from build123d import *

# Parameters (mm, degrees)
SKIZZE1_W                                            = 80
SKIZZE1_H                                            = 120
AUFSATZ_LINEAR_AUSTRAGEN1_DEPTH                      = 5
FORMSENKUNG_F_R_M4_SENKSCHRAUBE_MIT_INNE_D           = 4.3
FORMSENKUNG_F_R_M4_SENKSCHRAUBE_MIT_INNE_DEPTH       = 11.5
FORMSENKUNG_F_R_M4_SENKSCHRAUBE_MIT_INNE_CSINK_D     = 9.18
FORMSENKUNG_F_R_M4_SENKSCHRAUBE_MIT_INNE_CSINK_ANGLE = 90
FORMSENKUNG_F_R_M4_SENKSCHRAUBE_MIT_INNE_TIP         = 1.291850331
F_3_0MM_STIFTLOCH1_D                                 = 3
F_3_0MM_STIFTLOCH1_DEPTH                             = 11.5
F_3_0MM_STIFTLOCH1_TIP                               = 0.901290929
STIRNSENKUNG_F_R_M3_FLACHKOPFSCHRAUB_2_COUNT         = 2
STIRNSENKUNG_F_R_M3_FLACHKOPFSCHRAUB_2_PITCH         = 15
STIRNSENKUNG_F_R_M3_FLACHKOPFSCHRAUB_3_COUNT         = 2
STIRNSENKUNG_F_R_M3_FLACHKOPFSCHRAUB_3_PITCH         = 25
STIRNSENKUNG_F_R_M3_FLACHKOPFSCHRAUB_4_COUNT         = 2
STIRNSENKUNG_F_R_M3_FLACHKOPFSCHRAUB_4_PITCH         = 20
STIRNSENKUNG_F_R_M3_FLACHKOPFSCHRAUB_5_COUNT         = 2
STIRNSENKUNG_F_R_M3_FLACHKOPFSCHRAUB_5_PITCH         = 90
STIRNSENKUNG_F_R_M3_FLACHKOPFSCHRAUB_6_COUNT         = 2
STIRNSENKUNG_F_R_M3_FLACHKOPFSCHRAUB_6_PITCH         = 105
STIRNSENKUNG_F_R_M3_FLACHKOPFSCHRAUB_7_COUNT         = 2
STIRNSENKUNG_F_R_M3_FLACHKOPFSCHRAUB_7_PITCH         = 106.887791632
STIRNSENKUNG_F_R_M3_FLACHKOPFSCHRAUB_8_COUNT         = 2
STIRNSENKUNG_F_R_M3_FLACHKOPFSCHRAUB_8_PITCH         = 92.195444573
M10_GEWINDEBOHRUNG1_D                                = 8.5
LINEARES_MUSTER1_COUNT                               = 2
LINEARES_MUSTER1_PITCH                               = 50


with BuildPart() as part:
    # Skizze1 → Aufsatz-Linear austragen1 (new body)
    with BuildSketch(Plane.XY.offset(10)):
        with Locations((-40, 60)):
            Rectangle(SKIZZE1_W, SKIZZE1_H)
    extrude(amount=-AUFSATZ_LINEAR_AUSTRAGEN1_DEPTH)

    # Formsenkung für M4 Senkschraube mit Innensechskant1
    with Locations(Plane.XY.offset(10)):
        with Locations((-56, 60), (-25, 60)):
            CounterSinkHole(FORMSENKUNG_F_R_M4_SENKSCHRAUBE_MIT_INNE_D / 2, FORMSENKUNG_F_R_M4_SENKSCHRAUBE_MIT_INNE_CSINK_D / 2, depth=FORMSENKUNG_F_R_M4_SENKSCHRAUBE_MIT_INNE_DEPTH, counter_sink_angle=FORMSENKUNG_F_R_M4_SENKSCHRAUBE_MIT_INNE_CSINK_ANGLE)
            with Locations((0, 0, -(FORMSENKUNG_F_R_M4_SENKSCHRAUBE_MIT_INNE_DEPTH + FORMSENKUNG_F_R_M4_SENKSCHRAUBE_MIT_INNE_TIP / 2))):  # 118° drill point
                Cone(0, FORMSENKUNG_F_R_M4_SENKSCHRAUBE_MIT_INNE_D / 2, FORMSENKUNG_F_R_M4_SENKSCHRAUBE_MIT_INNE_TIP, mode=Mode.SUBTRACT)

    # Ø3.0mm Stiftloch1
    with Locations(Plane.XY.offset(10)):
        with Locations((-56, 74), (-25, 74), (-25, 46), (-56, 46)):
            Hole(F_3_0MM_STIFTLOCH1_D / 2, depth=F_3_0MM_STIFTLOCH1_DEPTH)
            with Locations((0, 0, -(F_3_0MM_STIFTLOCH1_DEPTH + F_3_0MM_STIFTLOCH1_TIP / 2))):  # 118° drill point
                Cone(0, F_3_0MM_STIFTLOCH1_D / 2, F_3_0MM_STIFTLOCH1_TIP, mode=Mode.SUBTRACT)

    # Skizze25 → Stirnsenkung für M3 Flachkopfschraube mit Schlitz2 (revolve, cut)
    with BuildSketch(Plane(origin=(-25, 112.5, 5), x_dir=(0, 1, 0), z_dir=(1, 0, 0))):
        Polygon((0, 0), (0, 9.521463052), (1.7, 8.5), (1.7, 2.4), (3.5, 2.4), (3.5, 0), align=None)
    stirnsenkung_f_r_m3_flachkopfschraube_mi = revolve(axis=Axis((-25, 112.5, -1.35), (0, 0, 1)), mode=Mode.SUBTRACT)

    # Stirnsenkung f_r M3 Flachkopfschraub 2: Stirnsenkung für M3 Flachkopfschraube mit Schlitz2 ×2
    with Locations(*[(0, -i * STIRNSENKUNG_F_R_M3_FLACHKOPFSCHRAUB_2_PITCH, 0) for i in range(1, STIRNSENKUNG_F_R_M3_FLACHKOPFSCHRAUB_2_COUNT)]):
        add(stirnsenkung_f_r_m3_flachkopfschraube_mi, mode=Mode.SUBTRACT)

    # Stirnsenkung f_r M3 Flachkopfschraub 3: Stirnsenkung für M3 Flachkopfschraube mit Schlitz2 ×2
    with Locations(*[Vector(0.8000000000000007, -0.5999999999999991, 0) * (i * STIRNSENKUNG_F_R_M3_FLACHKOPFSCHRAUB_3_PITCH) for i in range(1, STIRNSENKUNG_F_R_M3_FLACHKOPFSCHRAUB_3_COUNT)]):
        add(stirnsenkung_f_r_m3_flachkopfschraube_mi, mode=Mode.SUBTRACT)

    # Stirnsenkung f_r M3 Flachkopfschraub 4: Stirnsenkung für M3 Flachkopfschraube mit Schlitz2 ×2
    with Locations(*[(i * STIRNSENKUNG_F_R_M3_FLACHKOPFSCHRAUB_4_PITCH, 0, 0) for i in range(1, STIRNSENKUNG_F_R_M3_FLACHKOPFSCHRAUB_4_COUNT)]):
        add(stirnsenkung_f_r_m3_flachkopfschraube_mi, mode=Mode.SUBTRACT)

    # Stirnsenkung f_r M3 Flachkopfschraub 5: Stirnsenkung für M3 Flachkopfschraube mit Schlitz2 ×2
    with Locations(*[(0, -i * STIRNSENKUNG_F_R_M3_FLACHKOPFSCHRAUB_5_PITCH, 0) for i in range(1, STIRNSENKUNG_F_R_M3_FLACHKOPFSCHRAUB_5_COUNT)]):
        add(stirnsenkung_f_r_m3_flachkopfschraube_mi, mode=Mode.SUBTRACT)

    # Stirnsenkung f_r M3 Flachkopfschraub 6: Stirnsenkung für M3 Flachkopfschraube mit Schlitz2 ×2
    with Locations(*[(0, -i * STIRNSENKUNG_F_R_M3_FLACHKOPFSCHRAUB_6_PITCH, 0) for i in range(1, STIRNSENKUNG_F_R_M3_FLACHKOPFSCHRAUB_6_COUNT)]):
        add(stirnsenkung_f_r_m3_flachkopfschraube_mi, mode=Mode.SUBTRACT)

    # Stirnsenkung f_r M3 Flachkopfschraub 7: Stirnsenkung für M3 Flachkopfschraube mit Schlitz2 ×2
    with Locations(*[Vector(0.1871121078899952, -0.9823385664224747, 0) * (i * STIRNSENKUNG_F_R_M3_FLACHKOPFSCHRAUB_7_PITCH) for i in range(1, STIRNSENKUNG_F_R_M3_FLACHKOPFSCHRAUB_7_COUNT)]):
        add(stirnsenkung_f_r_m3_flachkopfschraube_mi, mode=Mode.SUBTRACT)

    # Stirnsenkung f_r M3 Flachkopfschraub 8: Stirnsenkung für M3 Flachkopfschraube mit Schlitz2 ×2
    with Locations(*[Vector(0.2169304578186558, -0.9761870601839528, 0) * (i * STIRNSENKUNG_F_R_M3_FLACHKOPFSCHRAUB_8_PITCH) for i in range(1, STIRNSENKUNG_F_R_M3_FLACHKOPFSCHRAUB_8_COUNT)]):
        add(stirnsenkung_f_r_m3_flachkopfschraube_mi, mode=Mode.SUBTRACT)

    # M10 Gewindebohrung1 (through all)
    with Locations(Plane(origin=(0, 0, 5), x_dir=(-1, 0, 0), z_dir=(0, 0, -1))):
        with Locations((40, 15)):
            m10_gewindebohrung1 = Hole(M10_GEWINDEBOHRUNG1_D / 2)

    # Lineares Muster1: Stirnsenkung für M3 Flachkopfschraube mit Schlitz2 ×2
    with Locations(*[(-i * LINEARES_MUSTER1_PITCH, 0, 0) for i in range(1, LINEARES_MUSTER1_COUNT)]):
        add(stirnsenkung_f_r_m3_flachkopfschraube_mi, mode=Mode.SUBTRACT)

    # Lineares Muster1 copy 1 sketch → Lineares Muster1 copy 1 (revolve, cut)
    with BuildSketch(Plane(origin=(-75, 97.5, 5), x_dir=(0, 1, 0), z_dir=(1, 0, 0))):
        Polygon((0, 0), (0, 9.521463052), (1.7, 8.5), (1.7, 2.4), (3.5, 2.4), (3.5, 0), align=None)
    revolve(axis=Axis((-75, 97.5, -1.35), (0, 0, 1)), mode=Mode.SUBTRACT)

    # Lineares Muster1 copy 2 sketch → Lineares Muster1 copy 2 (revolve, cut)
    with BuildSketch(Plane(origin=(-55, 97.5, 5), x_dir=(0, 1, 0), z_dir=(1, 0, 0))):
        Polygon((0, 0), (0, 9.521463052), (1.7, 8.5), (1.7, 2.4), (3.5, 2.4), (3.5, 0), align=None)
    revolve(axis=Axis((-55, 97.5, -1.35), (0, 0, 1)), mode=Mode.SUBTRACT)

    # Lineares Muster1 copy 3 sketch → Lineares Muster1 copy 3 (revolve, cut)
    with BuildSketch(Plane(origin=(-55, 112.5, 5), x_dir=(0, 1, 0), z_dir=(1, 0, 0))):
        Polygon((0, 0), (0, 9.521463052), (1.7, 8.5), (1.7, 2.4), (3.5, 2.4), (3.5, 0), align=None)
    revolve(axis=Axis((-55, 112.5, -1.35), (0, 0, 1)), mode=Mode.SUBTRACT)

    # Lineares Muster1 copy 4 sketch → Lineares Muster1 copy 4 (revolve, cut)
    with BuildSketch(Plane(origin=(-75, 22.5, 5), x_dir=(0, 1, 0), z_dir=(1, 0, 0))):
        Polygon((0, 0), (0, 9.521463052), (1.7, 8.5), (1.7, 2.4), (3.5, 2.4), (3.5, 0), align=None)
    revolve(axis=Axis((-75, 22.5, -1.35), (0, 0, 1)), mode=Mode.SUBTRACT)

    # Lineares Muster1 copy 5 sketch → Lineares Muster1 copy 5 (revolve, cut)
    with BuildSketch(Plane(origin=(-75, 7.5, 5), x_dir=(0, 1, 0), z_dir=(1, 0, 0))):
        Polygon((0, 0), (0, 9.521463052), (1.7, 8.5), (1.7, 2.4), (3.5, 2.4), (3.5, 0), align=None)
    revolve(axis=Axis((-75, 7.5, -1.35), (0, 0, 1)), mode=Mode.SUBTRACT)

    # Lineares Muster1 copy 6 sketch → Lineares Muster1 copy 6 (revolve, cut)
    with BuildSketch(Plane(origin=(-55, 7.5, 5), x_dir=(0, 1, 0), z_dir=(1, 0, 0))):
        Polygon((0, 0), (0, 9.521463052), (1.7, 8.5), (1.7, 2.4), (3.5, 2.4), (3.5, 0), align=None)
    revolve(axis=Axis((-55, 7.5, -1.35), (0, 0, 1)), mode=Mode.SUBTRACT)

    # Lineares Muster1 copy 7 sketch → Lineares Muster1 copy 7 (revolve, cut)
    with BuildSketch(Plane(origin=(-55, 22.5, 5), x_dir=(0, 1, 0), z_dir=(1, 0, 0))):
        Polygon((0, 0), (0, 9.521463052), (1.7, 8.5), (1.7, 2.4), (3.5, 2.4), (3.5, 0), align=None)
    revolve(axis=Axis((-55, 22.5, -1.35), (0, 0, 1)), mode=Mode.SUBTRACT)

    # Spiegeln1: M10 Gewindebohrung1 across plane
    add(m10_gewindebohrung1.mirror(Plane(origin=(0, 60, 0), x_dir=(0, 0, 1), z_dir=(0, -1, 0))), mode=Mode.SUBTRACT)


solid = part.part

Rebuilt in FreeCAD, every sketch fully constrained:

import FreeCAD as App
import Part
import Sketcher
Q = App.Units.Quantity


def add_polygon(sketch, points):
    """Adds a closed chain of lines whose ends are joined by coincident constraints."""
    first, n = sketch.GeometryCount, len(points)
    for a, b in zip(points, points[1:] + points[:1]):
        sketch.addGeometry(Part.LineSegment(App.Vector(*a, 0), App.Vector(*b, 0)), False)
    for i in range(n):
        sketch.addConstraint(Sketcher.Constraint("Coincident", first + i, 2, first + (i + 1) % n, 1))

doc = App.newDocument("Part")
body = doc.addObject("PartDesign::Body", "Body")

sketch1 = doc.addObject("Sketcher::SketchObject", "Sketch")
body.addObject(sketch1)
sketch1.AttachmentSupport = (doc.XY_Plane, [""])
sketch1.MapMode = "FlatFace"
sketch1.AttachmentOffset = App.Placement(App.Vector(0, 0, 10), App.Rotation())
add_polygon(sketch1, [(-80, 120), (-80, 0), (0, 0), (0, 120)])
sketch1.addConstraint(Sketcher.Constraint("Vertical", 0))
sketch1.addConstraint(Sketcher.Constraint("Horizontal", 1))
sketch1.addConstraint(Sketcher.Constraint("Vertical", 2))
sketch1.addConstraint(Sketcher.Constraint("Horizontal", 3))
sketch1.addConstraint(Sketcher.Constraint("Coincident", 1, 2, -1, 1))
sketch1.addConstraint(Sketcher.Constraint("DistanceX", 1, 1, 1, 2, Q("80 mm")))
sketch1.addConstraint(Sketcher.Constraint("DistanceY", 0, 2, 0, 1, Q("120 mm")))
pad1 = doc.addObject("PartDesign::Pad", "Pad")
body.addObject(pad1)
pad1.Profile = sketch1
pad1.Length = 5
pad1.Reversed = True

sketch2 = doc.addObject("Sketcher::SketchObject", "Sketch001")
body.addObject(sketch2)
sketch2.AttachmentSupport = (doc.XY_Plane, [""])
sketch2.MapMode = "FlatFace"
sketch2.AttachmentOffset = App.Placement(App.Vector(0, 0, 10), App.Rotation())
sketch2.addGeometry(Part.Circle(App.Vector(-56, 60, 0), App.Vector(0, 0, 1), 2.15), False)
sketch2.addGeometry(Part.Circle(App.Vector(-25, 60, 0), App.Vector(0, 0, 1), 2.15), False)
sketch2.addConstraint(Sketcher.Constraint("Equal", 0, 1))
sketch2.addConstraint(Sketcher.Constraint("Horizontal", 0, 3, 1, 3))
sketch2.addConstraint(Sketcher.Constraint("Diameter", 0, Q("4.3 mm")))
sketch2.addConstraint(Sketcher.Constraint("DistanceX", 0, 3, -1, 1, Q("56 mm")))
sketch2.addConstraint(Sketcher.Constraint("DistanceY", -1, 1, 0, 3, Q("60 mm")))
sketch2.addConstraint(Sketcher.Constraint("DistanceX", 1, 3, -1, 1, Q("25 mm")))
doc.recompute()
hole = doc.addObject("PartDesign::Hole", "Hole")
body.addObject(hole)
hole.Profile = sketch2
hole.ThreadType = "None"
hole.Diameter = 4.3
hole.DepthType = "Dimension"
hole.Depth = 11.5
hole.DrillPoint = "Angled"
hole.DrillPointAngle = 118
hole.HoleCutType = "Countersink"
hole.HoleCutDiameter = 9.18
hole.HoleCutCountersinkAngle = 90

sketch3 = doc.addObject("Sketcher::SketchObject", "Sketch002")
body.addObject(sketch3)
sketch3.AttachmentSupport = (doc.XY_Plane, [""])
sketch3.MapMode = "FlatFace"
sketch3.AttachmentOffset = App.Placement(App.Vector(0, 0, 10), App.Rotation())
sketch3.addGeometry(Part.Circle(App.Vector(-56, 74, 0), App.Vector(0, 0, 1), 1.5), False)
sketch3.addGeometry(Part.Circle(App.Vector(-25, 74, 0), App.Vector(0, 0, 1), 1.5), False)
sketch3.addGeometry(Part.Circle(App.Vector(-25, 46, 0), App.Vector(0, 0, 1), 1.5), False)
sketch3.addGeometry(Part.Circle(App.Vector(-56, 46, 0), App.Vector(0, 0, 1), 1.5), False)
sketch3.addConstraint(Sketcher.Constraint("Equal", 0, 1))
sketch3.addConstraint(Sketcher.Constraint("Equal", 1, 2))
sketch3.addConstraint(Sketcher.Constraint("Equal", 2, 3))
sketch3.addConstraint(Sketcher.Constraint("Horizontal", 0, 3, 1, 3))
sketch3.addConstraint(Sketcher.Constraint("Horizontal", 2, 3, 3, 3))
sketch3.addConstraint(Sketcher.Constraint("Vertical", 1, 3, 2, 3))
sketch3.addConstraint(Sketcher.Constraint("Vertical", 0, 3, 3, 3))
sketch3.addConstraint(Sketcher.Constraint("Diameter", 0, Q("3 mm")))
sketch3.addConstraint(Sketcher.Constraint("DistanceX", 0, 3, -1, 1, Q("56 mm")))
sketch3.addConstraint(Sketcher.Constraint("DistanceY", -1, 1, 0, 3, Q("74 mm")))
sketch3.addConstraint(Sketcher.Constraint("DistanceX", 1, 3, -1, 1, Q("25 mm")))
sketch3.addConstraint(Sketcher.Constraint("DistanceY", -1, 1, 2, 3, Q("46 mm")))
doc.recompute()
hole2 = doc.addObject("PartDesign::Hole", "Hole001")
body.addObject(hole2)
hole2.Profile = sketch3
hole2.ThreadType = "None"
hole2.Diameter = 3
hole2.DepthType = "Dimension"
hole2.Depth = 11.5
hole2.DrillPoint = "Angled"
hole2.DrillPointAngle = 118

sketch4 = doc.addObject("Sketcher::SketchObject", "Sketch003")
body.addObject(sketch4)
sketch4.AttachmentSupport = (doc.YZ_Plane, [""])
sketch4.MapMode = "FlatFace"
sketch4.AttachmentOffset = App.Placement(App.Vector(0, 0, -25), App.Rotation())
add_polygon(sketch4, [(112.5, 14.521463), (112.5, 5), (116, 5), (116, 7.4), (114.2, 7.4), (114.2, 13.5)])
sketch4.addGeometry(Part.LineSegment(App.Vector(112.5, 5, 0), App.Vector(112.5, 14.521463, 0)), True)
sketch4.addConstraint(Sketcher.Constraint("Vertical", 0))
sketch4.addConstraint(Sketcher.Constraint("Horizontal", 1))
sketch4.addConstraint(Sketcher.Constraint("Vertical", 2))
sketch4.addConstraint(Sketcher.Constraint("Horizontal", 3))
sketch4.addConstraint(Sketcher.Constraint("Vertical", 4))
sketch4.addConstraint(Sketcher.Constraint("Vertical", 6))
sketch4.addConstraint(Sketcher.Constraint("Coincident", 6, 1, 0, 2))
sketch4.addConstraint(Sketcher.Constraint("Equal", 0, 6))
sketch4.addConstraint(Sketcher.Constraint("Angle", 5, Q("149 deg")))
sketch4.addConstraint(Sketcher.Constraint("DistanceX", 1, 1, 1, 2, Q("3.5 mm")))
sketch4.addConstraint(Sketcher.Constraint("DistanceX", 3, 2, 3, 1, Q("1.8 mm")))
sketch4.addConstraint(Sketcher.Constraint("DistanceY", 2, 1, 2, 2, Q("2.4 mm")))
sketch4.addConstraint(Sketcher.Constraint("DistanceY", 4, 1, 4, 2, Q("6.1 mm")))
sketch4.addConstraint(Sketcher.Constraint("DistanceY", -1, 1, 0, 2, Q("5 mm")))
sketch4.addConstraint(Sketcher.Constraint("DistanceX", -1, 1, 1, 2, Q("116 mm")))
groove = doc.addObject("PartDesign::Groove", "Groove")
body.addObject(groove)
groove.Profile = sketch4
groove.ReferenceAxis = (sketch4, ["Axis0"])
groove.Angle = 360
doc.recompute()

linearpattern = doc.addObject("PartDesign::LinearPattern", "LinearPattern")
body.addObject(linearpattern)
linearpattern.Originals = [groove]
linearpattern.Direction = (doc.Y_Axis, [""])
linearpattern.Mode = "offset"
linearpattern.Offset = 15
linearpattern.Occurrences = 2
linearpattern.Reversed = True
body.Tip = linearpattern
doc.recompute()

datumline = doc.addObject("PartDesign::Line", "DatumLine")
body.addObject(datumline)
datumline.Placement = App.Placement(App.Vector(0, 0, 0), App.Rotation(App.Vector(0, 0, 1), App.Vector(0.8, -0.6, 0)))
linearpattern2 = doc.addObject("PartDesign::LinearPattern", "LinearPattern001")
body.addObject(linearpattern2)
linearpattern2.Originals = [groove]
linearpattern2.Direction = (datumline, [""])
linearpattern2.Mode = "offset"
linearpattern2.Offset = 25
linearpattern2.Occurrences = 2
body.Tip = linearpattern2
doc.recompute()

linearpattern3 = doc.addObject("PartDesign::LinearPattern", "LinearPattern002")
body.addObject(linearpattern3)
linearpattern3.Originals = [groove]
linearpattern3.Direction = (doc.X_Axis, [""])
linearpattern3.Mode = "offset"
linearpattern3.Offset = 20
linearpattern3.Occurrences = 2
body.Tip = linearpattern3
doc.recompute()

linearpattern4 = doc.addObject("PartDesign::LinearPattern", "LinearPattern003")
body.addObject(linearpattern4)
linearpattern4.Originals = [groove]
linearpattern4.Direction = (doc.Y_Axis, [""])
linearpattern4.Mode = "offset"
linearpattern4.Offset = 90
linearpattern4.Occurrences = 2
linearpattern4.Reversed = True
body.Tip = linearpattern4
doc.recompute()

linearpattern5 = doc.addObject("PartDesign::LinearPattern", "LinearPattern004")
body.addObject(linearpattern5)
linearpattern5.Originals = [groove]
linearpattern5.Direction = (doc.Y_Axis, [""])
linearpattern5.Mode = "offset"
linearpattern5.Offset = 105
linearpattern5.Occurrences = 2
linearpattern5.Reversed = True
body.Tip = linearpattern5
doc.recompute()

datumline2 = doc.addObject("PartDesign::Line", "DatumLine001")
body.addObject(datumline2)
datumline2.Placement = App.Placement(App.Vector(0, 0, 0), App.Rotation(App.Vector(0, 0, 1), App.Vector(0.187112108, -0.982338566, 0)))
linearpattern6 = doc.addObject("PartDesign::LinearPattern", "LinearPattern005")
body.addObject(linearpattern6)
linearpattern6.Originals = [groove]
linearpattern6.Direction = (datumline2, [""])
linearpattern6.Mode = "offset"
linearpattern6.Offset = 106.887792
linearpattern6.Occurrences = 2
body.Tip = linearpattern6
doc.recompute()

datumline3 = doc.addObject("PartDesign::Line", "DatumLine002")
body.addObject(datumline3)
datumline3.Placement = App.Placement(App.Vector(0, 0, 0), App.Rotation(App.Vector(0, 0, 1), App.Vector(0.216930458, -0.97618706, 0)))
linearpattern7 = doc.addObject("PartDesign::LinearPattern", "LinearPattern006")
body.addObject(linearpattern7)
linearpattern7.Originals = [groove]
linearpattern7.Direction = (datumline3, [""])
linearpattern7.Mode = "offset"
linearpattern7.Offset = 92.195445
linearpattern7.Occurrences = 2
body.Tip = linearpattern7

sketch5 = doc.addObject("Sketcher::SketchObject", "Sketch004")
body.addObject(sketch5)
sketch5.AttachmentSupport = (doc.XY_Plane, [""])
sketch5.MapMode = "FlatFace"
sketch5.AttachmentOffset = App.Placement(App.Vector(0, 0, 5), App.Rotation())
sketch5.addGeometry(Part.Circle(App.Vector(-40, 15, 0), App.Vector(0, 0, 1), 4.25), False)
sketch5.addConstraint(Sketcher.Constraint("Diameter", 0, Q("8.5 mm")))
sketch5.addConstraint(Sketcher.Constraint("DistanceX", 0, 3, -1, 1, Q("40 mm")))
sketch5.addConstraint(Sketcher.Constraint("DistanceY", -1, 1, 0, 3, Q("15 mm")))
doc.recompute()
hole3 = doc.addObject("PartDesign::Hole", "Hole002")
body.addObject(hole3)
hole3.Profile = sketch5
hole3.ThreadType = "None"
hole3.Diameter = 8.5
hole3.DepthType = "ThroughAll"
hole3.Reversed = True
doc.recompute()

linearpattern8 = doc.addObject("PartDesign::LinearPattern", "LinearPattern007")
body.addObject(linearpattern8)
linearpattern8.Originals = [groove]
linearpattern8.Direction = (doc.X_Axis, [""])
linearpattern8.Mode = "offset"
linearpattern8.Offset = 50
linearpattern8.Occurrences = 2
linearpattern8.Reversed = True
body.Tip = linearpattern8

sketch6 = doc.addObject("Sketcher::SketchObject", "Sketch005")
body.addObject(sketch6)
sketch6.AttachmentSupport = (doc.YZ_Plane, [""])
sketch6.MapMode = "FlatFace"
sketch6.AttachmentOffset = App.Placement(App.Vector(0, 0, -75), App.Rotation())
add_polygon(sketch6, [(97.5, 14.521463), (97.5, 5), (101, 5), (101, 7.4), (99.2, 7.4), (99.2, 13.5)])
sketch6.addGeometry(Part.LineSegment(App.Vector(97.5, 5, 0), App.Vector(97.5, 14.521463, 0)), True)
sketch6.addConstraint(Sketcher.Constraint("Vertical", 0))
sketch6.addConstraint(Sketcher.Constraint("Horizontal", 1))
sketch6.addConstraint(Sketcher.Constraint("Vertical", 2))
sketch6.addConstraint(Sketcher.Constraint("Horizontal", 3))
sketch6.addConstraint(Sketcher.Constraint("Vertical", 4))
sketch6.addConstraint(Sketcher.Constraint("Vertical", 6))
sketch6.addConstraint(Sketcher.Constraint("Coincident", 6, 1, 0, 2))
sketch6.addConstraint(Sketcher.Constraint("Equal", 0, 6))
sketch6.addConstraint(Sketcher.Constraint("Angle", 5, Q("149 deg")))
sketch6.addConstraint(Sketcher.Constraint("DistanceX", 1, 1, 1, 2, Q("3.5 mm")))
sketch6.addConstraint(Sketcher.Constraint("DistanceX", 3, 2, 3, 1, Q("1.8 mm")))
sketch6.addConstraint(Sketcher.Constraint("DistanceY", 2, 1, 2, 2, Q("2.4 mm")))
sketch6.addConstraint(Sketcher.Constraint("DistanceY", 4, 1, 4, 2, Q("6.1 mm")))
sketch6.addConstraint(Sketcher.Constraint("DistanceY", -1, 1, 0, 2, Q("5 mm")))
sketch6.addConstraint(Sketcher.Constraint("DistanceX", -1, 1, 1, 2, Q("101 mm")))
groove2 = doc.addObject("PartDesign::Groove", "Groove001")
body.addObject(groove2)
groove2.Profile = sketch6
groove2.ReferenceAxis = (sketch6, ["Axis0"])
groove2.Angle = 360

sketch7 = doc.addObject("Sketcher::SketchObject", "Sketch006")
body.addObject(sketch7)
sketch7.AttachmentSupport = (doc.YZ_Plane, [""])
sketch7.MapMode = "FlatFace"
sketch7.AttachmentOffset = App.Placement(App.Vector(0, 0, -55), App.Rotation())
add_polygon(sketch7, [(97.5, 14.521463), (97.5, 5), (101, 5), (101, 7.4), (99.2, 7.4), (99.2, 13.5)])
sketch7.addGeometry(Part.LineSegment(App.Vector(97.5, 5, 0), App.Vector(97.5, 14.521463, 0)), True)
sketch7.addConstraint(Sketcher.Constraint("Vertical", 0))
sketch7.addConstraint(Sketcher.Constraint("Horizontal", 1))
sketch7.addConstraint(Sketcher.Constraint("Vertical", 2))
sketch7.addConstraint(Sketcher.Constraint("Horizontal", 3))
sketch7.addConstraint(Sketcher.Constraint("Vertical", 4))
sketch7.addConstraint(Sketcher.Constraint("Vertical", 6))
sketch7.addConstraint(Sketcher.Constraint("Coincident", 6, 1, 0, 2))
sketch7.addConstraint(Sketcher.Constraint("Equal", 0, 6))
sketch7.addConstraint(Sketcher.Constraint("Angle", 5, Q("149 deg")))
sketch7.addConstraint(Sketcher.Constraint("DistanceX", 1, 1, 1, 2, Q("3.5 mm")))
sketch7.addConstraint(Sketcher.Constraint("DistanceX", 3, 2, 3, 1, Q("1.8 mm")))
sketch7.addConstraint(Sketcher.Constraint("DistanceY", 2, 1, 2, 2, Q("2.4 mm")))
sketch7.addConstraint(Sketcher.Constraint("DistanceY", 4, 1, 4, 2, Q("6.1 mm")))
sketch7.addConstraint(Sketcher.Constraint("DistanceY", -1, 1, 0, 2, Q("5 mm")))
sketch7.addConstraint(Sketcher.Constraint("DistanceX", -1, 1, 1, 2, Q("101 mm")))
groove3 = doc.addObject("PartDesign::Groove", "Groove002")
body.addObject(groove3)
groove3.Profile = sketch7
groove3.ReferenceAxis = (sketch7, ["Axis0"])
groove3.Angle = 360

sketch8 = doc.addObject("Sketcher::SketchObject", "Sketch007")
body.addObject(sketch8)
sketch8.AttachmentSupport = (doc.YZ_Plane, [""])
sketch8.MapMode = "FlatFace"
sketch8.AttachmentOffset = App.Placement(App.Vector(0, 0, -55), App.Rotation())
add_polygon(sketch8, [(112.5, 14.521463), (112.5, 5), (116, 5), (116, 7.4), (114.2, 7.4), (114.2, 13.5)])
sketch8.addGeometry(Part.LineSegment(App.Vector(112.5, 5, 0), App.Vector(112.5, 14.521463, 0)), True)
sketch8.addConstraint(Sketcher.Constraint("Vertical", 0))
sketch8.addConstraint(Sketcher.Constraint("Horizontal", 1))
sketch8.addConstraint(Sketcher.Constraint("Vertical", 2))
sketch8.addConstraint(Sketcher.Constraint("Horizontal", 3))
sketch8.addConstraint(Sketcher.Constraint("Vertical", 4))
sketch8.addConstraint(Sketcher.Constraint("Vertical", 6))
sketch8.addConstraint(Sketcher.Constraint("Coincident", 6, 1, 0, 2))
sketch8.addConstraint(Sketcher.Constraint("Equal", 0, 6))
sketch8.addConstraint(Sketcher.Constraint("Angle", 5, Q("149 deg")))
sketch8.addConstraint(Sketcher.Constraint("DistanceX", 1, 1, 1, 2, Q("3.5 mm")))
sketch8.addConstraint(Sketcher.Constraint("DistanceX", 3, 2, 3, 1, Q("1.8 mm")))
sketch8.addConstraint(Sketcher.Constraint("DistanceY", 2, 1, 2, 2, Q("2.4 mm")))
sketch8.addConstraint(Sketcher.Constraint("DistanceY", 4, 1, 4, 2, Q("6.1 mm")))
sketch8.addConstraint(Sketcher.Constraint("DistanceY", -1, 1, 0, 2, Q("5 mm")))
sketch8.addConstraint(Sketcher.Constraint("DistanceX", -1, 1, 1, 2, Q("116 mm")))
groove4 = doc.addObject("PartDesign::Groove", "Groove003")
body.addObject(groove4)
groove4.Profile = sketch8
groove4.ReferenceAxis = (sketch8, ["Axis0"])
groove4.Angle = 360

sketch9 = doc.addObject("Sketcher::SketchObject", "Sketch008")
body.addObject(sketch9)
sketch9.AttachmentSupport = (doc.YZ_Plane, [""])
sketch9.MapMode = "FlatFace"
sketch9.AttachmentOffset = App.Placement(App.Vector(0, 0, -75), App.Rotation())
add_polygon(sketch9, [(22.5, 14.521463), (22.5, 5), (26, 5), (26, 7.4), (24.2, 7.4), (24.2, 13.5)])
sketch9.addGeometry(Part.LineSegment(App.Vector(22.5, 5, 0), App.Vector(22.5, 14.521463, 0)), True)
sketch9.addConstraint(Sketcher.Constraint("Vertical", 0))
sketch9.addConstraint(Sketcher.Constraint("Horizontal", 1))
sketch9.addConstraint(Sketcher.Constraint("Vertical", 2))
sketch9.addConstraint(Sketcher.Constraint("Horizontal", 3))
sketch9.addConstraint(Sketcher.Constraint("Vertical", 4))
sketch9.addConstraint(Sketcher.Constraint("Vertical", 6))
sketch9.addConstraint(Sketcher.Constraint("Coincident", 6, 1, 0, 2))
sketch9.addConstraint(Sketcher.Constraint("Equal", 0, 6))
sketch9.addConstraint(Sketcher.Constraint("Angle", 5, Q("149 deg")))
sketch9.addConstraint(Sketcher.Constraint("DistanceX", 1, 1, 1, 2, Q("3.5 mm")))
sketch9.addConstraint(Sketcher.Constraint("DistanceX", 3, 2, 3, 1, Q("1.8 mm")))
sketch9.addConstraint(Sketcher.Constraint("DistanceY", 2, 1, 2, 2, Q("2.4 mm")))
sketch9.addConstraint(Sketcher.Constraint("DistanceY", 4, 1, 4, 2, Q("6.1 mm")))
sketch9.addConstraint(Sketcher.Constraint("DistanceY", -1, 1, 0, 2, Q("5 mm")))
sketch9.addConstraint(Sketcher.Constraint("DistanceX", -1, 1, 1, 2, Q("26 mm")))
groove5 = doc.addObject("PartDesign::Groove", "Groove004")
body.addObject(groove5)
groove5.Profile = sketch9
groove5.ReferenceAxis = (sketch9, ["Axis0"])
groove5.Angle = 360

sketch10 = doc.addObject("Sketcher::SketchObject", "Sketch009")
body.addObject(sketch10)
sketch10.AttachmentSupport = (doc.YZ_Plane, [""])
sketch10.MapMode = "FlatFace"
sketch10.AttachmentOffset = App.Placement(App.Vector(0, 0, -75), App.Rotation())
add_polygon(sketch10, [(7.5, 14.521463), (7.5, 5), (11, 5), (11, 7.4), (9.2, 7.4), (9.2, 13.5)])
sketch10.addGeometry(Part.LineSegment(App.Vector(7.5, 5, 0), App.Vector(7.5, 14.521463, 0)), True)
sketch10.addConstraint(Sketcher.Constraint("Vertical", 0))
sketch10.addConstraint(Sketcher.Constraint("Horizontal", 1))
sketch10.addConstraint(Sketcher.Constraint("Vertical", 2))
sketch10.addConstraint(Sketcher.Constraint("Horizontal", 3))
sketch10.addConstraint(Sketcher.Constraint("Vertical", 4))
sketch10.addConstraint(Sketcher.Constraint("Vertical", 6))
sketch10.addConstraint(Sketcher.Constraint("Coincident", 6, 1, 0, 2))
sketch10.addConstraint(Sketcher.Constraint("Equal", 0, 6))
sketch10.addConstraint(Sketcher.Constraint("Angle", 5, Q("149 deg")))
sketch10.addConstraint(Sketcher.Constraint("DistanceX", 1, 1, 1, 2, Q("3.5 mm")))
sketch10.addConstraint(Sketcher.Constraint("DistanceX", 3, 2, 3, 1, Q("1.8 mm")))
sketch10.addConstraint(Sketcher.Constraint("DistanceY", 2, 1, 2, 2, Q("2.4 mm")))
sketch10.addConstraint(Sketcher.Constraint("DistanceY", 4, 1, 4, 2, Q("6.1 mm")))
sketch10.addConstraint(Sketcher.Constraint("DistanceY", -1, 1, 0, 2, Q("5 mm")))
sketch10.addConstraint(Sketcher.Constraint("DistanceX", -1, 1, 1, 2, Q("11 mm")))
groove6 = doc.addObject("PartDesign::Groove", "Groove005")
body.addObject(groove6)
groove6.Profile = sketch10
groove6.ReferenceAxis = (sketch10, ["Axis0"])
groove6.Angle = 360

sketch11 = doc.addObject("Sketcher::SketchObject", "Sketch010")
body.addObject(sketch11)
sketch11.AttachmentSupport = (doc.YZ_Plane, [""])
sketch11.MapMode = "FlatFace"
sketch11.AttachmentOffset = App.Placement(App.Vector(0, 0, -55), App.Rotation())
add_polygon(sketch11, [(7.5, 14.521463), (7.5, 5), (11, 5), (11, 7.4), (9.2, 7.4), (9.2, 13.5)])
sketch11.addGeometry(Part.LineSegment(App.Vector(7.5, 5, 0), App.Vector(7.5, 14.521463, 0)), True)
sketch11.addConstraint(Sketcher.Constraint("Vertical", 0))
sketch11.addConstraint(Sketcher.Constraint("Horizontal", 1))
sketch11.addConstraint(Sketcher.Constraint("Vertical", 2))
sketch11.addConstraint(Sketcher.Constraint("Horizontal", 3))
sketch11.addConstraint(Sketcher.Constraint("Vertical", 4))
sketch11.addConstraint(Sketcher.Constraint("Vertical", 6))
sketch11.addConstraint(Sketcher.Constraint("Coincident", 6, 1, 0, 2))
sketch11.addConstraint(Sketcher.Constraint("Equal", 0, 6))
sketch11.addConstraint(Sketcher.Constraint("Angle", 5, Q("149 deg")))
sketch11.addConstraint(Sketcher.Constraint("DistanceX", 1, 1, 1, 2, Q("3.5 mm")))
sketch11.addConstraint(Sketcher.Constraint("DistanceX", 3, 2, 3, 1, Q("1.8 mm")))
sketch11.addConstraint(Sketcher.Constraint("DistanceY", 2, 1, 2, 2, Q("2.4 mm")))
sketch11.addConstraint(Sketcher.Constraint("DistanceY", 4, 1, 4, 2, Q("6.1 mm")))
sketch11.addConstraint(Sketcher.Constraint("DistanceY", -1, 1, 0, 2, Q("5 mm")))
sketch11.addConstraint(Sketcher.Constraint("DistanceX", -1, 1, 1, 2, Q("11 mm")))
groove7 = doc.addObject("PartDesign::Groove", "Groove006")
body.addObject(groove7)
groove7.Profile = sketch11
groove7.ReferenceAxis = (sketch11, ["Axis0"])
groove7.Angle = 360

sketch12 = doc.addObject("Sketcher::SketchObject", "Sketch011")
body.addObject(sketch12)
sketch12.AttachmentSupport = (doc.YZ_Plane, [""])
sketch12.MapMode = "FlatFace"
sketch12.AttachmentOffset = App.Placement(App.Vector(0, 0, -55), App.Rotation())
add_polygon(sketch12, [(22.5, 14.521463), (22.5, 5), (26, 5), (26, 7.4), (24.2, 7.4), (24.2, 13.5)])
sketch12.addGeometry(Part.LineSegment(App.Vector(22.5, 5, 0), App.Vector(22.5, 14.521463, 0)), True)
sketch12.addConstraint(Sketcher.Constraint("Vertical", 0))
sketch12.addConstraint(Sketcher.Constraint("Horizontal", 1))
sketch12.addConstraint(Sketcher.Constraint("Vertical", 2))
sketch12.addConstraint(Sketcher.Constraint("Horizontal", 3))
sketch12.addConstraint(Sketcher.Constraint("Vertical", 4))
sketch12.addConstraint(Sketcher.Constraint("Vertical", 6))
sketch12.addConstraint(Sketcher.Constraint("Coincident", 6, 1, 0, 2))
sketch12.addConstraint(Sketcher.Constraint("Equal", 0, 6))
sketch12.addConstraint(Sketcher.Constraint("Angle", 5, Q("149 deg")))
sketch12.addConstraint(Sketcher.Constraint("DistanceX", 1, 1, 1, 2, Q("3.5 mm")))
sketch12.addConstraint(Sketcher.Constraint("DistanceX", 3, 2, 3, 1, Q("1.8 mm")))
sketch12.addConstraint(Sketcher.Constraint("DistanceY", 2, 1, 2, 2, Q("2.4 mm")))
sketch12.addConstraint(Sketcher.Constraint("DistanceY", 4, 1, 4, 2, Q("6.1 mm")))
sketch12.addConstraint(Sketcher.Constraint("DistanceY", -1, 1, 0, 2, Q("5 mm")))
sketch12.addConstraint(Sketcher.Constraint("DistanceX", -1, 1, 1, 2, Q("26 mm")))
groove8 = doc.addObject("PartDesign::Groove", "Groove007")
body.addObject(groove8)
groove8.Profile = sketch12
groove8.ReferenceAxis = (sketch12, ["Axis0"])
groove8.Angle = 360
doc.recompute()

datumplane = doc.addObject("PartDesign::Plane", "DatumPlane")
body.addObject(datumplane)
datumplane.AttachmentSupport = (doc.XZ_Plane, [""])
datumplane.MapMode = "FlatFace"
datumplane.AttachmentOffset = App.Placement(App.Vector(0, 0, -60), App.Rotation())
mirrored = doc.addObject("PartDesign::Mirrored", "Mirrored")
body.addObject(mirrored)
mirrored.Originals = [hole3]
mirrored.MirrorPlane = (datumplane, [""])
body.Tip = mirrored

doc.recompute()
